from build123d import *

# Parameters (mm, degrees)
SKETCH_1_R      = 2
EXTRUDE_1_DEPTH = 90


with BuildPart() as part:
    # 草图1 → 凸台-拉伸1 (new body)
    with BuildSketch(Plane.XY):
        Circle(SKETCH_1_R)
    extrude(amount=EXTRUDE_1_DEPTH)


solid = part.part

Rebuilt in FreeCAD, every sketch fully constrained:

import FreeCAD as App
import Part
import Sketcher

V = App.Vector
Q = App.Units.Quantity

doc = App.newDocument("Part")
body = doc.addObject("PartDesign::Body", "Body")

sketch1 = doc.addObject("Sketcher::SketchObject", "Sketch")
body.addObject(sketch1)
sketch1.AttachmentSupport = (doc.XY_Plane, [""])
sketch1.MapMode = "FlatFace"
sketch1.addGeometry(Part.Circle(V(0, 0, 0), V(0, 0, 1), 2), False)
sketch1.addConstraint([
    Sketcher.Constraint("Coincident", 0, 3, -1, 1),
    Sketcher.Constraint("Diameter", 0, Q("4 mm")),
])
pad1 = doc.addObject("PartDesign::Pad", "Pad")
body.addObject(pad1)
pad1.Profile = sketch1
pad1.Length = 90

doc.recompute()
